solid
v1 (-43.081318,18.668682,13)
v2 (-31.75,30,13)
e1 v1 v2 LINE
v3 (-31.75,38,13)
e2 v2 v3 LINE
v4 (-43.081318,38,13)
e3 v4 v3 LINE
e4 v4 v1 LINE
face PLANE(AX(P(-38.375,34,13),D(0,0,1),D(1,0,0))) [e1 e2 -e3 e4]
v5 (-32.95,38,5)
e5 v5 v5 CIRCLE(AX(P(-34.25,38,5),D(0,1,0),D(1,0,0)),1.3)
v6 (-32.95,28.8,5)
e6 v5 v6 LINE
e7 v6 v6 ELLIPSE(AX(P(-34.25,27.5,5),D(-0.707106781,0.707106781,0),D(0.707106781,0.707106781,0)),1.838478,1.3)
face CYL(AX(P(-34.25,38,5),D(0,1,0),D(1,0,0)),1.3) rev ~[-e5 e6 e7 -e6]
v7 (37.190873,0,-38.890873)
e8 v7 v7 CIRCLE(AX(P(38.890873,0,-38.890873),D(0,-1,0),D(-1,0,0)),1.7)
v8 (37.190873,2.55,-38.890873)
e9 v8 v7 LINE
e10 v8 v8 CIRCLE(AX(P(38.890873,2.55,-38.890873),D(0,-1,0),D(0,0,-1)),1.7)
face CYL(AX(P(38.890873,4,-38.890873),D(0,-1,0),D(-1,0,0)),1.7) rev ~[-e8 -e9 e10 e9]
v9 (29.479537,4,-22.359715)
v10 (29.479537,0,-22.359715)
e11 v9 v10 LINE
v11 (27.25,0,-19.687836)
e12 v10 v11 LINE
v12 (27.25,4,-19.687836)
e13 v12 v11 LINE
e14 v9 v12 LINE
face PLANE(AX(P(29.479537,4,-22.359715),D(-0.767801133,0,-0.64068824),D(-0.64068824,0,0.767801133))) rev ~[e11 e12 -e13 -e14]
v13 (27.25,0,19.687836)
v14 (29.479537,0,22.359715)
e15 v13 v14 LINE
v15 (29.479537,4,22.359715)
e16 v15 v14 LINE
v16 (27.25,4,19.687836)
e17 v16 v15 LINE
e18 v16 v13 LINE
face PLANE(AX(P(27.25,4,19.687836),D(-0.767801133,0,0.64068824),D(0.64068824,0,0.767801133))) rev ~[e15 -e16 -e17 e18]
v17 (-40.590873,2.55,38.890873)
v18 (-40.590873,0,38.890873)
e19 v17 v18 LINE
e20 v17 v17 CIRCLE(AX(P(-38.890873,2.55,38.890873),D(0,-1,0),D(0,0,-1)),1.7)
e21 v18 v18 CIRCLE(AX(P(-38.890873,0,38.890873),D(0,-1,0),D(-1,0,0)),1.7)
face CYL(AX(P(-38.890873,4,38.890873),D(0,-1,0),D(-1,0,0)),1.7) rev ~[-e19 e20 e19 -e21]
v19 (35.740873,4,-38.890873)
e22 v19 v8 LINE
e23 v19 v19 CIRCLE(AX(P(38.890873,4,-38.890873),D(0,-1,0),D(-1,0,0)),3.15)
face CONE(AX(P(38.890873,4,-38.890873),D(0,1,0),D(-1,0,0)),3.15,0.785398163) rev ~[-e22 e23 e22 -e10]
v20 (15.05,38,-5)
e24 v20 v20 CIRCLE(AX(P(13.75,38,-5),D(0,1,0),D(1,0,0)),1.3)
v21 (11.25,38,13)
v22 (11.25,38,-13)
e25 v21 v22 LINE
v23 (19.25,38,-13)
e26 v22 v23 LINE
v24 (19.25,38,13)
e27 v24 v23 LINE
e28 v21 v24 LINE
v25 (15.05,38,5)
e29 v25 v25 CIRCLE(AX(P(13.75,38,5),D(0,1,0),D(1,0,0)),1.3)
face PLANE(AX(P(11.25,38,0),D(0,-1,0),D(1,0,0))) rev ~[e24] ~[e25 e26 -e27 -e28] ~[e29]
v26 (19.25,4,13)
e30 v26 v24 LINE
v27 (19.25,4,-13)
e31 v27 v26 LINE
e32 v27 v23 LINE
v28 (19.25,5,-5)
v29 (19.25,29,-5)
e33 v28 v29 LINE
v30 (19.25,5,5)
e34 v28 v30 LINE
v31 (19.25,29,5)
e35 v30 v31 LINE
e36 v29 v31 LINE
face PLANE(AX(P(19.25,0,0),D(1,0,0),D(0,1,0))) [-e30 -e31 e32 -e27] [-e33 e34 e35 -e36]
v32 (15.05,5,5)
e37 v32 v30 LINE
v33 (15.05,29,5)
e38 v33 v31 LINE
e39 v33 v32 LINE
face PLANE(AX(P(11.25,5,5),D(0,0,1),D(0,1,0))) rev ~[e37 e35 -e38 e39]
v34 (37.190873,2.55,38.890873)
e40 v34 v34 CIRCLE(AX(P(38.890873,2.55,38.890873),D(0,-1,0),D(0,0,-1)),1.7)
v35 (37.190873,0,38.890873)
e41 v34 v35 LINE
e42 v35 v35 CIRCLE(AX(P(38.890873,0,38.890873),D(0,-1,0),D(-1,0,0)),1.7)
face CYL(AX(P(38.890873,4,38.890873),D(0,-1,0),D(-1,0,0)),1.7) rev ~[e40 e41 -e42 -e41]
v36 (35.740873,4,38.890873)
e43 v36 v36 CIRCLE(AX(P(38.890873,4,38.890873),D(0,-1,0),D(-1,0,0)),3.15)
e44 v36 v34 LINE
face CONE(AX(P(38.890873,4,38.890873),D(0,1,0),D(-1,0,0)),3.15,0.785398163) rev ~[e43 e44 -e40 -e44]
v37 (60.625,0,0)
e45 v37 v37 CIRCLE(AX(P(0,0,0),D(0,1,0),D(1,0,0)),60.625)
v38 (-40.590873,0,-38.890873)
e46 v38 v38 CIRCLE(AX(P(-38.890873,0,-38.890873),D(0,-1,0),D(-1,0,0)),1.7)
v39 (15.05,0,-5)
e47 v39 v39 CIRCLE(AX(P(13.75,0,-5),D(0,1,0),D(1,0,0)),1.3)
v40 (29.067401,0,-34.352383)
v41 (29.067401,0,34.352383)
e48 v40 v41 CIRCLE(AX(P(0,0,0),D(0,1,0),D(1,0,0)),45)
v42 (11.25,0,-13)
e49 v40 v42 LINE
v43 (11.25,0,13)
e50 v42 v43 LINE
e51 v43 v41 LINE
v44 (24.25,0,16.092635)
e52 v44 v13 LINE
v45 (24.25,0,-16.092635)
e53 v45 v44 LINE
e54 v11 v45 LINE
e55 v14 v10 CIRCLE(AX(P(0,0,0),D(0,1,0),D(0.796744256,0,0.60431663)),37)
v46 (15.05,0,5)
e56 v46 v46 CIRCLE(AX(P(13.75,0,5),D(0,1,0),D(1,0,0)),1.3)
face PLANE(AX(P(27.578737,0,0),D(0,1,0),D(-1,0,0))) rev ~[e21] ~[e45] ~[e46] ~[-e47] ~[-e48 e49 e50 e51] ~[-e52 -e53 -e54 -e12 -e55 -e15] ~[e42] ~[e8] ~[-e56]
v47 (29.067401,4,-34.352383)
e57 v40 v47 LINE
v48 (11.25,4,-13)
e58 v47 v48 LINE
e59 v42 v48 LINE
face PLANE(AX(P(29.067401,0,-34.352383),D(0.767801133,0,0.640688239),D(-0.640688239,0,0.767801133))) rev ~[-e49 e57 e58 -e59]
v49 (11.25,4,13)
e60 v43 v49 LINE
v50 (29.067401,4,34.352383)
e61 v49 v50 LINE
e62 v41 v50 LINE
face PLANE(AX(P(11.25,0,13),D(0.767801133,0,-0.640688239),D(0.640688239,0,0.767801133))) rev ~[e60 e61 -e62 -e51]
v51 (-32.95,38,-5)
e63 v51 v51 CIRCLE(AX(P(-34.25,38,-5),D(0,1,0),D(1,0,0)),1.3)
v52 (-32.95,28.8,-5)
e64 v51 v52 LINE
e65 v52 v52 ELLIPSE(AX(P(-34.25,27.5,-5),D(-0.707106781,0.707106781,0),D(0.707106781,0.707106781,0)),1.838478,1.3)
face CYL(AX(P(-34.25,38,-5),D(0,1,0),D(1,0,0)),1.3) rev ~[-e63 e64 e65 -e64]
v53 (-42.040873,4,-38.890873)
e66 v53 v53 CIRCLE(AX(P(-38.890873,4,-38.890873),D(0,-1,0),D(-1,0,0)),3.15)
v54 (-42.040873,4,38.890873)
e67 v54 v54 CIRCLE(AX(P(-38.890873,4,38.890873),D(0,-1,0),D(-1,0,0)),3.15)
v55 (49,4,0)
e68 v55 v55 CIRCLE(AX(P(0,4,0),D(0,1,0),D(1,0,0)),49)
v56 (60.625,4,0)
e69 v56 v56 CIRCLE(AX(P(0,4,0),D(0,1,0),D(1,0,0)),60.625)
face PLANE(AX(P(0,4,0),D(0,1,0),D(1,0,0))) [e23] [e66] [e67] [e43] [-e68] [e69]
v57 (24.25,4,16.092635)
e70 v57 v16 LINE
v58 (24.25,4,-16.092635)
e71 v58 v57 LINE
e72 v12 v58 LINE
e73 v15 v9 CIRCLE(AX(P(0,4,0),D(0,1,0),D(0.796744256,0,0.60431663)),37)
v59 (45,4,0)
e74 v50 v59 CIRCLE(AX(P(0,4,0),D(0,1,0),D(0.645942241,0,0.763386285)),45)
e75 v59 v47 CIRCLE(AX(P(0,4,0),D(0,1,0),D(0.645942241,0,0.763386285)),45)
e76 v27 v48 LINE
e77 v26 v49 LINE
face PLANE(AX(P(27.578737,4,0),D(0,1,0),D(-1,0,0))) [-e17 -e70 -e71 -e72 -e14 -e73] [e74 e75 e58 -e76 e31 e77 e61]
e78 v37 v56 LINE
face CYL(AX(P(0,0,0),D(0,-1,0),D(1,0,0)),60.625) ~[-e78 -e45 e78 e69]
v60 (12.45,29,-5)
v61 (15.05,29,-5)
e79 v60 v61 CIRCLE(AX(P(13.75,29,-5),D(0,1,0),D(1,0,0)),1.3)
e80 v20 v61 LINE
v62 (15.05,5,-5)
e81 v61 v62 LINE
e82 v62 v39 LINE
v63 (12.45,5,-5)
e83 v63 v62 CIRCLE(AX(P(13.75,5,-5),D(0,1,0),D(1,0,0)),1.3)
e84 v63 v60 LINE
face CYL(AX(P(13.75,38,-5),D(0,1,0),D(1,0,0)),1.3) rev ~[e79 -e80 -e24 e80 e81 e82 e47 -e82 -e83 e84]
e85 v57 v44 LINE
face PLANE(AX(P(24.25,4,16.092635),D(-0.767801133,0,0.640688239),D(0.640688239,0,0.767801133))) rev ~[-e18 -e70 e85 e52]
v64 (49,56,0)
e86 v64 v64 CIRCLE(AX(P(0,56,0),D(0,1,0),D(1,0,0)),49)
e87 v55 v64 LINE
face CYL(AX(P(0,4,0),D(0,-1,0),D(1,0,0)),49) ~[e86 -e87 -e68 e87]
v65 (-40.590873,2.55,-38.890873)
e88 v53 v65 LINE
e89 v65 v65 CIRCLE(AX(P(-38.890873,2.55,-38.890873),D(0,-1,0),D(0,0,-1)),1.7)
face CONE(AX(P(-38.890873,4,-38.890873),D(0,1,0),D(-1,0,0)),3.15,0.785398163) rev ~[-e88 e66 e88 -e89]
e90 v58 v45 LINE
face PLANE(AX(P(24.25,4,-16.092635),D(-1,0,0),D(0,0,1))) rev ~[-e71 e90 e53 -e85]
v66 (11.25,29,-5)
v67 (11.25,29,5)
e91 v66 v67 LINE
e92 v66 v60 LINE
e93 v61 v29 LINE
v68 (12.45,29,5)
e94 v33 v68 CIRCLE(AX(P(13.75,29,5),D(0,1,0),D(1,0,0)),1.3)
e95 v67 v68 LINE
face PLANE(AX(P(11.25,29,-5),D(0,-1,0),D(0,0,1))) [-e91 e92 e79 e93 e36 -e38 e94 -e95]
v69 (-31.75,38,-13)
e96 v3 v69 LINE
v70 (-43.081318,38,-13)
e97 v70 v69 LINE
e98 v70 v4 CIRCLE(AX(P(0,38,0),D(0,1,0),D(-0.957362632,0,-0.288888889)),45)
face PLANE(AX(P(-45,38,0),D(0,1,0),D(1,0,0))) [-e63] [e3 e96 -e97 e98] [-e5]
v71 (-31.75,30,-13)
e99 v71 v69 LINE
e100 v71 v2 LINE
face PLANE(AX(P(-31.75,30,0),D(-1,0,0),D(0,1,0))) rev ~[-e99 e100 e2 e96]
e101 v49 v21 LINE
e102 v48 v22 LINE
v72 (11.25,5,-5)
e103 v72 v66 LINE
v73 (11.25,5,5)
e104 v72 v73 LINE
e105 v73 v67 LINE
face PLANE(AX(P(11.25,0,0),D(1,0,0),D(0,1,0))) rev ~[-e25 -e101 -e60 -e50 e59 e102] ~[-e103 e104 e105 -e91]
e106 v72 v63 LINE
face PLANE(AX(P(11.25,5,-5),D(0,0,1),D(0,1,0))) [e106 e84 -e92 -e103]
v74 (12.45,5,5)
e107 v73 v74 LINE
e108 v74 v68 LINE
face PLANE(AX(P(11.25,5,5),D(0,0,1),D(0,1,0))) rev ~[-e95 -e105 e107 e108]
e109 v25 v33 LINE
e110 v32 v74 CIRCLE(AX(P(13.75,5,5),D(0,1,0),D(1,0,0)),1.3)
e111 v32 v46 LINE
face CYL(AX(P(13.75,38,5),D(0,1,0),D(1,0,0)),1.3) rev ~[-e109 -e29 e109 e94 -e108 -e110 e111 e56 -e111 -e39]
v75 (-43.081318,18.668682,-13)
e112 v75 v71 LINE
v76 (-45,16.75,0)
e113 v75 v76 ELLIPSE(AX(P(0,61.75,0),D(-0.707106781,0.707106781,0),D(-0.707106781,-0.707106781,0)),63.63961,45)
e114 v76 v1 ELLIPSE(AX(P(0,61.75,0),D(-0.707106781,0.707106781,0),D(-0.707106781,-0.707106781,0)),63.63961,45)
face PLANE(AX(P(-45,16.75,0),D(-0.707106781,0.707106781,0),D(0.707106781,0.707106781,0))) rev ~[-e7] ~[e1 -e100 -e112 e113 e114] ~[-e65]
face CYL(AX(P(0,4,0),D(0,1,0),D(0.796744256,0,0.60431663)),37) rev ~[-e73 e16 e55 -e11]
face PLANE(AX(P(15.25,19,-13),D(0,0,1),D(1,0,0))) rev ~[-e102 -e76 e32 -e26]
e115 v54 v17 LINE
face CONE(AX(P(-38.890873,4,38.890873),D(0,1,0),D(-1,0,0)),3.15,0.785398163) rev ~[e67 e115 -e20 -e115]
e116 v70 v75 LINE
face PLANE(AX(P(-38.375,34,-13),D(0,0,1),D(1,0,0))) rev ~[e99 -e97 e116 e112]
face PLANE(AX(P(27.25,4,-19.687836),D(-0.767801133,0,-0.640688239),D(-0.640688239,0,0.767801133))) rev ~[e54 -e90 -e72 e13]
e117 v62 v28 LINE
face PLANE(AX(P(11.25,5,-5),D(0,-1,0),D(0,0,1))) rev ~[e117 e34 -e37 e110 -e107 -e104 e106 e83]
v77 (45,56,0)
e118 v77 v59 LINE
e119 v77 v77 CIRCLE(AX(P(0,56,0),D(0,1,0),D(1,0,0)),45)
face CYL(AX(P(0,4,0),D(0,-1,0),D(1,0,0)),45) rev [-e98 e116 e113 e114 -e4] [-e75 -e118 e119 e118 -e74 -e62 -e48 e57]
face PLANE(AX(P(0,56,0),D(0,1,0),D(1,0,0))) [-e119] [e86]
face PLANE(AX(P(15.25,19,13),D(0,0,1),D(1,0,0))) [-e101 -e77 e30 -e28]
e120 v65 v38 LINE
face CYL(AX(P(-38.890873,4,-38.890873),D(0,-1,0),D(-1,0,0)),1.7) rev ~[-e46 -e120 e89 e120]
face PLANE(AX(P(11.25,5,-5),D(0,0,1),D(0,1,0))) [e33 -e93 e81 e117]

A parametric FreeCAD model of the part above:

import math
import FreeCAD as App
import Part
import Sketcher

V = App.Vector
Q = App.Units.Quantity


def add_polygon(sketch, points):
    """Adds a closed chain of lines whose ends are joined by coincident constraints."""
    first, n = sketch.GeometryCount, len(points)
    for a, b in zip(points, points[1:] + points[:1]):
        sketch.addGeometry(Part.LineSegment(App.Vector(*a, 0), App.Vector(*b, 0)), False)
    for i in range(n):
        sketch.addConstraint(Sketcher.Constraint("Coincident", first + i, 2, first + (i + 1) % n, 1))

doc = App.newDocument("Part")
body = doc.addObject("PartDesign::Body", "Body")
body.AllowCompound = True

sketch1 = doc.addObject("Sketcher::SketchObject", "Sketch")
body.addObject(sketch1)
sketch1.AttachmentSupport = (doc.XZ_Plane, [""])
sketch1.MapMode = "FlatFace"
sketch1.addGeometry([
    Part.Circle(V(0, 0, 0), V(0, 0, 1), 60.625),
    Part.Circle(V(0, 0, 0), V(0, 0, 1), 45),
], False)
sketch1.addConstraint([
    Sketcher.Constraint("Coincident", 0, 3, -1, 1),
    Sketcher.Constraint("Coincident", 1, 3, -1, 1),
    Sketcher.Constraint("Diameter", 1, Q("90 mm")),
    Sketcher.Constraint("Diameter", 0, Q("121.25 mm")),
])
pad1 = doc.addObject("PartDesign::Pad", "Pad")
body.addObject(pad1)
pad1.Profile = sketch1
pad1.Length = 4
pad1.Reversed = True

sketch2 = doc.addObject("Sketcher::SketchObject", "Sketch001")
body.addObject(sketch2)
sketch2.AttachmentSupport = (doc.XZ_Plane, [""])
sketch2.MapMode = "FlatFace"
sketch2.AttachmentOffset = App.Placement(V(0, 0, -4), App.Rotation())
sketch2.addGeometry([
    Part.Circle(V(0, 0, 0), V(0, 0, 1), 49),
    Part.Circle(V(0, 0, 0), V(0, 0, 1), 45),
], False)
sketch2.addConstraint([
    Sketcher.Constraint("Coincident", 0, 3, -1, 1),
    Sketcher.Constraint("Coincident", 1, 3, -1, 1),
    Sketcher.Constraint("Diameter", 0, Q("98 mm")),
    Sketcher.Constraint("Diameter", 1, Q("90 mm")),
])
pad2 = doc.addObject("PartDesign::Pad", "Pad001")
body.addObject(pad2)
pad2.Profile = sketch2
pad2.Length = 52
pad2.Reversed = True

sketch3 = doc.addObject("Sketcher::SketchObject", "Sketch002")
body.addObject(sketch3)
sketch3.AttachmentSupport = (doc.XY_Plane, [""])
sketch3.MapMode = "FlatFace"
add_polygon(sketch3, [(-45, 38), (-45, 16.75), (-31.75, 30), (-31.75, 38)])
add_polygon(sketch3, [(11.25, 38), (11.25, 0), (19.25, 0), (19.25, 38)])
sketch3.addConstraint([
    Sketcher.Constraint("Vertical", 0),
    Sketcher.Constraint("Vertical", 2),
    Sketcher.Constraint("Horizontal", 3),
    Sketcher.Constraint("Vertical", 4),
    Sketcher.Constraint("Horizontal", 5),
    Sketcher.Constraint("Vertical", 6),
    Sketcher.Constraint("Horizontal", 7),
    Sketcher.Constraint("PointOnObject", 4, 2, -1),
    Sketcher.Constraint("Horizontal", 3, 2, 6, 2),
    Sketcher.Constraint("Equal", 7, 2),
    Sketcher.Constraint("DistanceX", 5, 1, 5, 2, Q("8 mm")),
    Sketcher.Constraint("DistanceY", 4, 2, 4, 1, Q("38 mm")),
    Sketcher.Constraint("Angle", 1, Q("45 deg")),
    Sketcher.Constraint("DistanceX", 0, 2, -1, 1, Q("45 mm")),
    Sketcher.Constraint("DistanceX", 1, 2, 4, 2, Q("43 mm")),
    Sketcher.Constraint("DistanceX", 3, 2, 3, 1, Q("13.25 mm")),
])
pad3 = doc.addObject("PartDesign::Pad", "Pad002")
body.addObject(pad3)
pad3.Profile = sketch3
pad3.Length = 26
pad3.Midplane = True

sketch4 = doc.addObject("Sketcher::SketchObject", "Sketch003")
body.addObject(sketch4)
sketch4.AttachmentSupport = (doc.XZ_Plane, [""])
sketch4.MapMode = "FlatFace"
sketch4.addGeometry([
    Part.LineSegment(V(29.067401, 34.352383, 0), V(11.25, 13, 0)),
    Part.LineSegment(V(11.25, 13, 0), V(11.25, -13, 0)),
    Part.LineSegment(V(11.25, -13, 0), V(29.067401, -34.352383, 0)),
    Part.ArcOfCircle(Part.Circle(V(0, 0, 0), V(0, 0, 1), 45), math.radians(-49.763642), math.radians(49.763642)),
], False)
sketch4.addConstraint([
    Sketcher.Constraint("Coincident", 0, 2, 1, 1),
    Sketcher.Constraint("Coincident", 1, 2, 2, 1),
    Sketcher.Constraint("Coincident", 2, 2, 3, 1),
    Sketcher.Constraint("Coincident", 3, 2, 0, 1),
    Sketcher.Constraint("Vertical", 1),
    Sketcher.Constraint("Coincident", 3, 3, -1, 1),
    Sketcher.Constraint("Vertical", 2, 2, 3, 2),
    Sketcher.Constraint("Equal", 0, 2),
    Sketcher.Constraint("Radius", 3, Q("45 mm")),
    Sketcher.Constraint("DistanceY", 1, 2, 1, 1, Q("26 mm")),
    Sketcher.Constraint("DistanceX", -1, 1, 0, 2, Q("11.25 mm")),
    Sketcher.Constraint("DistanceX", -1, 1, 2, 2, Q("29.067401 mm")),
])
pad4 = doc.addObject("PartDesign::Pad", "Pad003")
body.addObject(pad4)
pad4.Profile = sketch4
pad4.Length = 4
pad4.Reversed = True

sketch5 = doc.addObject("Sketcher::SketchObject", "Sketch004")
body.addObject(sketch5)
sketch5.AttachmentSupport = (doc.XZ_Plane, [""])
sketch5.MapMode = "FlatFace"
sketch5.AttachmentOffset = App.Placement(V(0, 0, -38), App.Rotation())
sketch5.addGeometry([
    Part.Circle(V(-34.25, -5, 0), V(0, 0, 1), 1.3),
    Part.Circle(V(-34.25, 5, 0), V(0, 0, 1), 1.3),
    Part.Circle(V(13.75, -5, 0), V(0, 0, 1), 1.3),
    Part.Circle(V(13.75, 5, 0), V(0, 0, 1), 1.3),
], False)
sketch5.addConstraint([
    Sketcher.Constraint("Equal", 0, 1),
    Sketcher.Constraint("Equal", 1, 2),
    Sketcher.Constraint("Equal", 2, 3),
    Sketcher.Constraint("Symmetric", 0, 3, 1, 3, -1),
    Sketcher.Constraint("Symmetric", 2, 3, 3, 3, -1),
    Sketcher.Constraint("Horizontal", 0, 3, 2, 3),
    Sketcher.Constraint("Diameter", 0, Q("2.6 mm")),
    Sketcher.Constraint("DistanceY", 0, 3, -1, 1, Q("5 mm")),
    Sketcher.Constraint("DistanceX", 0, 3, 2, 3, Q("48 mm")),
    Sketcher.Constraint("DistanceX", 0, 3, -1, 1, Q("34.25 mm")),
])
pocket1 = doc.addObject("PartDesign::Pocket", "Pocket")
body.addObject(pocket1)
pocket1.Profile = sketch5
pocket1.Type = "ThroughAll"
pocket1.Reversed = True

sketch6 = doc.addObject("Sketcher::SketchObject", "Sketch005")
body.addObject(sketch6)
sketch6.AttachmentSupport = (doc.YZ_Plane, [""])
sketch6.MapMode = "FlatFace"
sketch6.AttachmentOffset = App.Placement(V(0, 0, 11.25), App.Rotation())
add_polygon(sketch6, [(29, -5), (5, -5), (5, 5), (29, 5)])
sketch6.addConstraint([
    Sketcher.Constraint("Horizontal", 0),
    Sketcher.Constraint("Vertical", 1),
    Sketcher.Constraint("Horizontal", 2),
    Sketcher.Constraint("Vertical", 3),
    Sketcher.Constraint("DistanceX", 0, 2, 0, 1, Q("24 mm")),
    Sketcher.Constraint("DistanceY", 1, 1, 1, 2, Q("10 mm")),
    Sketcher.Constraint("DistanceX", -1, 1, 0, 2, Q("5 mm")),
    Sketcher.Constraint("DistanceY", 0, 2, -1, 1, Q("5 mm")),
])
pocket2 = doc.addObject("PartDesign::Pocket", "Pocket001")
body.addObject(pocket2)
pocket2.Profile = sketch6
pocket2.Length = 8
pocket2.Reversed = True

sketch7 = doc.addObject("Sketcher::SketchObject", "Sketch006")
body.addObject(sketch7)
sketch7.AttachmentSupport = (doc.XZ_Plane, [""])
sketch7.MapMode = "FlatFace"
sketch7.AttachmentOffset = App.Placement(V(0, 0, -4), App.Rotation())
sketch7.addGeometry([
    Part.LineSegment(V(29.479537, -22.359715, 0), V(27.25, -19.687836, 0)),
    Part.LineSegment(V(27.25, -19.687836, 0), V(24.25, -16.092635, 0)),
    Part.LineSegment(V(24.25, -16.092635, 0), V(24.25, 16.092635, 0)),
    Part.LineSegment(V(24.25, 16.092635, 0), V(27.25, 19.687836, 0)),
    Part.LineSegment(V(27.25, 19.687836, 0), V(29.479537, 22.359715, 0)),
    Part.ArcOfCircle(Part.Circle(V(0, 0, 0), V(0, 0, 1), 37), math.radians(-37.179683), math.radians(37.179683)),
], False)
sketch7.addConstraint([
    Sketcher.Constraint("Coincident", 0, 2, 1, 1),
    Sketcher.Constraint("Coincident", 1, 2, 2, 1),
    Sketcher.Constraint("Coincident", 2, 2, 3, 1),
    Sketcher.Constraint("Coincident", 3, 2, 4, 1),
    Sketcher.Constraint("Coincident", 4, 2, 5, 2),
    Sketcher.Constraint("Coincident", 5, 1, 0, 1),
    Sketcher.Constraint("Vertical", 2),
    Sketcher.Constraint("Coincident", 5, 3, -1, 1),
    Sketcher.Constraint("Symmetric", 0, 2, 3, 2, -1),
    Sketcher.Constraint("Parallel", 0, 1),
    Sketcher.Constraint("Parallel", 3, 4),
    Sketcher.Constraint("Vertical", 4, 2, 5, 1),
    Sketcher.Constraint("Radius", 5, Q("37 mm")),
    Sketcher.Constraint("DistanceX", 1, 2, 0, 2, Q("3 mm")),
    Sketcher.Constraint("DistanceX", -1, 1, 0, 2, Q("27.25 mm")),
    Sketcher.Constraint("DistanceY", 2, 1, 2, 2, Q("32.18527 mm")),
    Sketcher.Constraint("DistanceY", 0, 2, 1, 2, Q("3.595202 mm")),
])
pocket3 = doc.addObject("PartDesign::Pocket", "Pocket002")
body.addObject(pocket3)
pocket3.Profile = sketch7
pocket3.Type = "ThroughAll"
pocket3.Reversed = True

sketch8 = doc.addObject("Sketcher::SketchObject", "Sketch007")
body.addObject(sketch8)
sketch8.AttachmentSupport = (doc.XZ_Plane, [""])
sketch8.MapMode = "FlatFace"
sketch8.AttachmentOffset = App.Placement(V(0, 0, -4), App.Rotation())
sketch8.addGeometry([
    Part.Circle(V(-38.890873, -38.890873, 0), V(0, 0, 1), 1.7),
    Part.Circle(V(-38.890873, 38.890873, 0), V(0, 0, 1), 1.7),
    Part.Circle(V(38.890873, 38.890873, 0), V(0, 0, 1), 1.7),
    Part.Circle(V(38.890873, -38.890873, 0), V(0, 0, 1), 1.7),
], False)
sketch8.addConstraint([
    Sketcher.Constraint("Equal", 0, 1),
    Sketcher.Constraint("Equal", 1, 2),
    Sketcher.Constraint("Equal", 2, 3),
    Sketcher.Constraint("Symmetric", 0, 3, 2, 3, -1, 1),
    Sketcher.Constraint("Symmetric", 1, 3, 3, 3, -1, 1),
    Sketcher.Constraint("Symmetric", 1, 3, 2, 3, -2),
    Sketcher.Constraint("Diameter", 0, Q("3.4 mm")),
    Sketcher.Constraint("DistanceX", 0, 3, -1, 1, Q("38.890873 mm")),
    Sketcher.Constraint("DistanceY", 0, 3, -1, 1, Q("38.890873 mm")),
])
doc.recompute()
hole = doc.addObject("PartDesign::Hole", "Hole")
body.addObject(hole)
hole.Profile = sketch8
hole.ThreadType = "None"
hole.Diameter = 3.4
hole.DepthType = "Dimension"
hole.Depth = 4
hole.DrillPoint = "Flat"
hole.HoleCutType = "Countersink"
hole.HoleCutDiameter = 6.3
hole.HoleCutCountersinkAngle = 90
hole.Reversed = True

doc.recompute()
